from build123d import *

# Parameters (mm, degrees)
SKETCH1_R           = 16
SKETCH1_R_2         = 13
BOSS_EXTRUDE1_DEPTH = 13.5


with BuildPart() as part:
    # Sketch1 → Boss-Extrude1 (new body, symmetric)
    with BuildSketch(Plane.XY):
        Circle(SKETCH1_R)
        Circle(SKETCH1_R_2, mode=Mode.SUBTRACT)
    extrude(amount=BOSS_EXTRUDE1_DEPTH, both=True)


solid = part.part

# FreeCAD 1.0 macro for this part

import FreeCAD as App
import Part
import Sketcher
Q = App.Units.Quantity

doc = App.newDocument("Part")
body = doc.addObject("PartDesign::Body", "Body")

# Sketch on XY plane
sketch1 = doc.addObject("Sketcher::SketchObject", "Sketch")
body.addObject(sketch1)
sketch1.AttachmentSupport = (doc.XY_Plane, [""])
sketch1.MapMode = "FlatFace"
sketch1.addGeometry([
    Part.Circle(App.Vector(0, 0, 0), App.Vector(0, 0, 1), 16),
    Part.Circle(App.Vector(0, 0, 0), App.Vector(0, 0, 1), 13),
], False)
sketch1.addConstraint([
    Sketcher.Constraint("Coincident", 0, 3, -1, 1),
    Sketcher.Constraint("Coincident", 1, 3, -1, 1),
    Sketcher.Constraint("Diameter", 0, Q("32 mm")),
    Sketcher.Constraint("Diameter", 1, Q("26 mm")),
])
pad1 = doc.addObject("PartDesign::Pad", "Pad")
body.addObject(pad1)
pad1.Profile = sketch1
pad1.Length = 27
pad1.Midplane = True

doc.recompute()
